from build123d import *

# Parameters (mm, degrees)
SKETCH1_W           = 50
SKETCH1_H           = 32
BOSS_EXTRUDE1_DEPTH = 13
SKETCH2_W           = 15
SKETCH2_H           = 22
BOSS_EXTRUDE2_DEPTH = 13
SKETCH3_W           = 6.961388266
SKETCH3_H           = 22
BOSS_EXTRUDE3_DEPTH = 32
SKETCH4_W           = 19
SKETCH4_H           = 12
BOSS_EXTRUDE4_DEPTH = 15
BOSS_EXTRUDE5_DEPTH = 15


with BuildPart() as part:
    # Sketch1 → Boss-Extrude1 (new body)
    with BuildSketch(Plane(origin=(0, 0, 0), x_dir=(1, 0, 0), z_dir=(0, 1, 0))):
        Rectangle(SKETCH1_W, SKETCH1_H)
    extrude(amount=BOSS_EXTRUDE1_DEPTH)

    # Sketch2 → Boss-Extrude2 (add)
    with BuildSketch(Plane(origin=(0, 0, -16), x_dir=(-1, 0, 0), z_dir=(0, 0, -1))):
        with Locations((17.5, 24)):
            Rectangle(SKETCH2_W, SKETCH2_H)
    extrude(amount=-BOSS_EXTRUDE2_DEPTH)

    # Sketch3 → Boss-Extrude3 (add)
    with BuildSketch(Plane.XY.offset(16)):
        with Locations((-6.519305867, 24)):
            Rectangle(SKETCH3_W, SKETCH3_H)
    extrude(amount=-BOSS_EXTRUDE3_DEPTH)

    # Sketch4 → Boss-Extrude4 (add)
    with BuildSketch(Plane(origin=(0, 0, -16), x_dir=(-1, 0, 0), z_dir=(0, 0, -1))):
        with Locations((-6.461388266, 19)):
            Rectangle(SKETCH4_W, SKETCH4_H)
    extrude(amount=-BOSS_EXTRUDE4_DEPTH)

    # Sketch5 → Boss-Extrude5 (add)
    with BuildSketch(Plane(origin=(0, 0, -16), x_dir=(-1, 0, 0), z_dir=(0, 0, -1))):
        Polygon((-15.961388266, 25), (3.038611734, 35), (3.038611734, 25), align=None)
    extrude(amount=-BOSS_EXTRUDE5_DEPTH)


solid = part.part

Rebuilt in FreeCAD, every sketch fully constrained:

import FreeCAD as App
import Part
import Sketcher
from FreeCAD import Vector


def add_polygon(sketch, points):
    """Adds a closed chain of lines whose ends are joined by coincident constraints."""
    first, n = sketch.GeometryCount, len(points)
    for a, b in zip(points, points[1:] + points[:1]):
        sketch.addGeometry(Part.LineSegment(App.Vector(*a, 0), App.Vector(*b, 0)), False)
    for i in range(n):
        sketch.addConstraint(Sketcher.Constraint("Coincident", first + i, 2, first + (i + 1) % n, 1))

doc = App.newDocument("Part")
params = doc.addObject("Spreadsheet::Sheet", "Params")
for row, (alias, value) in enumerate([
    ("sketch1_width", "50 mm"),
    ("sketch1_height", "32 mm"),
    ("pad1_length", "13 mm"),
    ("sketch2_width", "15 mm"),
    ("sketch2_height", "22 mm"),
    ("pad2_length", "13 mm"),
    ("sketch3_height", "22 mm"),
    ("pad3_length", "32 mm"),
    ("sketch4_width", "19 mm"),
    ("sketch4_height", "12 mm"),
    ("pad4_length", "15 mm"),
    ("sketch5_width", "19 mm"),
    ("sketch5_height", "10 mm"),
    ("pad5_length", "15 mm"),
], start=1):
    params.set(f"A{row}", alias)
    params.set(f"B{row}", "=" + value)
    params.setAlias(f"B{row}", alias)

body = doc.addObject("PartDesign::Body", "Body")

sketch1 = body.newObject("Sketcher::SketchObject", "Sketch")
sketch1.AttachmentSupport = (doc.getObject("XZ_Plane"), [""])
sketch1.MapMode = "FlatFace"
add_polygon(sketch1, [(-25, -16), (-25, 16), (25, 16), (25, -16)])
sketch1.addConstraint([
    Sketcher.Constraint("Vertical", 0),
    Sketcher.Constraint("Horizontal", 1),
    Sketcher.Constraint("Vertical", 2),
    Sketcher.Constraint("Horizontal", 3),
    Sketcher.Constraint("Symmetric", 0, 2, 2, 2, -1, 1),
    Sketcher.Constraint("DistanceX", 1, 1, 1, 2, 50.0),
    Sketcher.Constraint("DistanceY", 0, 1, 0, 2, 32.0),
])
sketch1.setExpression("Constraints[9]", "Params.sketch1_width")
sketch1.setExpression("Constraints[10]", "Params.sketch1_height")
pad1 = body.newObject("PartDesign::Pad", "Pad")
pad1.Profile = sketch1
pad1.setExpression("Length", "Params.pad1_length")
pad1.Reversed = True

sketch2 = body.newObject("Sketcher::SketchObject", "Sketch001")
sketch2.AttachmentSupport = (doc.getObject("XY_Plane"), [""])
sketch2.MapMode = "FlatFace"
sketch2.AttachmentOffset = App.Placement(Vector(0, 0, -16), App.Rotation())
add_polygon(sketch2, [(-10, 35), (-10, 13), (-25, 13), (-25, 35)])
sketch2.addConstraint([
    Sketcher.Constraint("Vertical", 0),
    Sketcher.Constraint("Horizontal", 1),
    Sketcher.Constraint("Vertical", 2),
    Sketcher.Constraint("Horizontal", 3),
    Sketcher.Constraint("DistanceX", 1, 2, 1, 1, 15.0),
    Sketcher.Constraint("DistanceY", 0, 2, 0, 1, 22.0),
    Sketcher.Constraint("DistanceX", 0, 2, -1, 1, 10.0),
    Sketcher.Constraint("DistanceY", -1, 1, 0, 2, 13.0),
])
sketch2.setExpression("Constraints[8]", "Params.sketch2_width")
sketch2.setExpression("Constraints[9]", "Params.sketch2_height")
pad2 = body.newObject("PartDesign::Pad", "Pad001")
pad2.Profile = sketch2
pad2.setExpression("Length", "Params.pad2_length")

sketch3 = body.newObject("Sketcher::SketchObject", "Sketch002")
sketch3.AttachmentSupport = (doc.getObject("XY_Plane"), [""])
sketch3.MapMode = "FlatFace"
sketch3.AttachmentOffset = App.Placement(Vector(0, 0, 16), App.Rotation())
add_polygon(sketch3, [(-10, 35), (-10, 13), (-3, 13), (-3, 35)])
sketch3.addConstraint([
    Sketcher.Constraint("Vertical", 0),
    Sketcher.Constraint("Horizontal", 1),
    Sketcher.Constraint("Vertical", 2),
    Sketcher.Constraint("Horizontal", 3),
    Sketcher.Constraint("DistanceY", 0, 2, 0, 1, 22.0),
    Sketcher.Constraint("DistanceX", 0, 2, -1, 1, 10.0),
    Sketcher.Constraint("DistanceY", -1, 1, 0, 2, 13.0),
    Sketcher.Constraint("DistanceX", 1, 1, 1, 2, 6.961388),
])
sketch3.setExpression("Constraints[8]", "Params.sketch3_height")
pad3 = body.newObject("PartDesign::Pad", "Pad002")
pad3.Profile = sketch3
pad3.setExpression("Length", "Params.pad3_length")
pad3.Reversed = True

sketch4 = body.newObject("Sketcher::SketchObject", "Sketch003")
sketch4.AttachmentSupport = (doc.getObject("XY_Plane"), [""])
sketch4.MapMode = "FlatFace"
sketch4.AttachmentOffset = App.Placement(Vector(0, 0, -16), App.Rotation())
add_polygon(sketch4, [(16, 25), (16, 13), (-3, 13), (-3, 25)])
sketch4.addConstraint([
    Sketcher.Constraint("Vertical", 0),
    Sketcher.Constraint("Horizontal", 1),
    Sketcher.Constraint("Vertical", 2),
    Sketcher.Constraint("Horizontal", 3),
    Sketcher.Constraint("DistanceX", 1, 2, 1, 1, 19.0),
    Sketcher.Constraint("DistanceY", 0, 2, 0, 1, 12.0),
    Sketcher.Constraint("DistanceY", -1, 1, 0, 2, 13.0),
    Sketcher.Constraint("DistanceX", -1, 1, 0, 2, 15.961388),
])
sketch4.setExpression("Constraints[8]", "Params.sketch4_width")
sketch4.setExpression("Constraints[9]", "Params.sketch4_height")
pad4 = body.newObject("PartDesign::Pad", "Pad003")
pad4.Profile = sketch4
pad4.setExpression("Length", "Params.pad4_length")

sketch5 = body.newObject("Sketcher::SketchObject", "Sketch004")
sketch5.AttachmentSupport = (doc.getObject("XY_Plane"), [""])
sketch5.MapMode = "FlatFace"
sketch5.AttachmentOffset = App.Placement(Vector(0, 0, -16), App.Rotation())
add_polygon(sketch5, [(-3, 35), (16, 25), (-3, 25)])
sketch5.addConstraint([
    Sketcher.Constraint("Horizontal", 1),
    Sketcher.Constraint("Vertical", 2),
    Sketcher.Constraint("DistanceX", 1, 2, 1, 1, 19.0),
    Sketcher.Constraint("DistanceY", 2, 1, 2, 2, 10.0),
    Sketcher.Constraint("DistanceY", -1, 1, 0, 2, 25.0),
    Sketcher.Constraint("DistanceX", -1, 1, 0, 2, 15.961388),
])
sketch5.setExpression("Constraints[5]", "Params.sketch5_width")
sketch5.setExpression("Constraints[6]", "Params.sketch5_height")
pad5 = body.newObject("PartDesign::Pad", "Pad004")
pad5.Profile = sketch5
pad5.setExpression("Length", "Params.pad5_length")

doc.recompute()
